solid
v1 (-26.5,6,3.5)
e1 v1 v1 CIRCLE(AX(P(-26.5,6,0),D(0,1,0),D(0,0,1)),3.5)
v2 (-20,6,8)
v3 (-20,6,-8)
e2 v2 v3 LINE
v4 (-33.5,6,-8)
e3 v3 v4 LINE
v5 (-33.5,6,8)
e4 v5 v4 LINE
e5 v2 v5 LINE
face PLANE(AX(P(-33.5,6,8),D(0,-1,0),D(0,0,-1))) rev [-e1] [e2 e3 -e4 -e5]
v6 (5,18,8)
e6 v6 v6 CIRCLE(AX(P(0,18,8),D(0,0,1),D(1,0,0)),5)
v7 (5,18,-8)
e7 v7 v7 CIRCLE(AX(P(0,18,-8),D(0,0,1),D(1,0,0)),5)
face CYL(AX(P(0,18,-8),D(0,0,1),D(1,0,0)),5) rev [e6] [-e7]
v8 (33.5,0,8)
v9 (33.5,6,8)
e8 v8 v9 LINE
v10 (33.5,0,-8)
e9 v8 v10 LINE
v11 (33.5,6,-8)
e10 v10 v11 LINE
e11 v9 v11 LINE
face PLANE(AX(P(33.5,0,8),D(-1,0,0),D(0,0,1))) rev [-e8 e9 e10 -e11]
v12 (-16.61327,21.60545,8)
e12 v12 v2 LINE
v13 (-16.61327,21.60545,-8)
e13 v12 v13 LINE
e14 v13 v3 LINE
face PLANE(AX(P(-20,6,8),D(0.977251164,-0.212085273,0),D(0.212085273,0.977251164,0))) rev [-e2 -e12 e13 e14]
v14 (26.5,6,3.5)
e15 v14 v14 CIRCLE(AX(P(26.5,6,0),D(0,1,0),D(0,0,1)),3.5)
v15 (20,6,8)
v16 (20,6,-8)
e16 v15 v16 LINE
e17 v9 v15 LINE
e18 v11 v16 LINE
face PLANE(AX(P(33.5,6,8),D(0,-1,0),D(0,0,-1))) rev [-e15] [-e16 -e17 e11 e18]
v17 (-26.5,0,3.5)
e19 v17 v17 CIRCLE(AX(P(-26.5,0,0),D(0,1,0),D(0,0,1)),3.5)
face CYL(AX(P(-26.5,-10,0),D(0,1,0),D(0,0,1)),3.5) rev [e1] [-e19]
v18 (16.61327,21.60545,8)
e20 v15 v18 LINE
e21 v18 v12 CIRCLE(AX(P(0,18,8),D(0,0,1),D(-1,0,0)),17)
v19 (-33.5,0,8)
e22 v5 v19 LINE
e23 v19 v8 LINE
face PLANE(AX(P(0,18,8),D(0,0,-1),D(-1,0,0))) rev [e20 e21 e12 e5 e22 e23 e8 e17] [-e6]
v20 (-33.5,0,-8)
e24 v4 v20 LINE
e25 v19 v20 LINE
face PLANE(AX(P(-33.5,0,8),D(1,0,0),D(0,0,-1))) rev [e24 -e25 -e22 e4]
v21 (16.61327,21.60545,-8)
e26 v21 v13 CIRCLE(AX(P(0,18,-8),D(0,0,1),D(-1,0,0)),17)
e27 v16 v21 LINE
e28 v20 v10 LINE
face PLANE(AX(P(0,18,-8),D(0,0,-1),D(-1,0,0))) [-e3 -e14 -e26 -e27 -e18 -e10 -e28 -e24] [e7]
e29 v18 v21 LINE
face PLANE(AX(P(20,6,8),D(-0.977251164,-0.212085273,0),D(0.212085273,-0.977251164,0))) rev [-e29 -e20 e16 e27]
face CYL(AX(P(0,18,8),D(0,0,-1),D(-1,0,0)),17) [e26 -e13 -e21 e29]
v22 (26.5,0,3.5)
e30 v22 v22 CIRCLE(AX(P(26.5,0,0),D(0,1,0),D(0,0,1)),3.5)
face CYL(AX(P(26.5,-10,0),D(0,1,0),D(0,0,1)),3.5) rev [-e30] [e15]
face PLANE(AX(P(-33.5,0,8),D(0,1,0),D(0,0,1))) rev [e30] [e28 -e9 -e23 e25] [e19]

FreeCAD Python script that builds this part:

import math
import FreeCAD as App
import Part
import Sketcher

doc = App.newDocument("Part")
params = doc.addObject("Spreadsheet::Sheet", "Params")
for row, (alias, value) in enumerate([
    ("sketch1_radius", "17 mm"),
    ("sketch1_width", "67 mm"),
    ("sketch1_height", "6 mm"),
    ("sketch1_width2", "13.5 mm"),
    ("pad1_length", "16 mm"),
    ("sketch2_diameter", "7 mm"),
    ("pocket1_length", "16 mm"),
    ("sketch3_diameter", "10 mm"),
    ("pocket2_length", "16 mm"),
], start=1):
    params.set(f"A{row}", alias)
    params.set(f"B{row}", "=" + value)
    params.setAlias(f"B{row}", alias)

body = doc.addObject("PartDesign::Body", "Body")

# Sketch on XY plane
sketch1 = body.newObject("Sketcher::SketchObject", "Sketch")
sketch1.AttachmentSupport = (doc.getObject("XY_Plane"), [""])
sketch1.MapMode = "FlatFace"
sketch1.addGeometry(Part.LineSegment(App.Vector(-34, 0, 0), App.Vector(34, 0, 0)), False)
sketch1.addGeometry(Part.LineSegment(App.Vector(34, 0, 0), App.Vector(34, 6, 0)), False)
sketch1.addGeometry(Part.LineSegment(App.Vector(34, 6, 0), App.Vector(20, 6, 0)), False)
sketch1.addGeometry(Part.LineSegment(App.Vector(20, 6, 0), App.Vector(17, 22, 0)), False)
sketch1.addGeometry(Part.ArcOfCircle(Part.Circle(App.Vector(0, 18, 0), App.Vector(0, 0, 1), 17), math.radians(12), math.radians(168)), False)
sketch1.addGeometry(Part.LineSegment(App.Vector(-17, 22, 0), App.Vector(-20, 6, 0)), False)
sketch1.addGeometry(Part.LineSegment(App.Vector(-20, 6, 0), App.Vector(-34, 6, 0)), False)
sketch1.addGeometry(Part.LineSegment(App.Vector(-34, 6, 0), App.Vector(-34, 0, 0)), False)
sketch1.addConstraint(Sketcher.Constraint("Coincident", 0, 2, 1, 1))
sketch1.addConstraint(Sketcher.Constraint("Coincident", 1, 2, 2, 1))
sketch1.addConstraint(Sketcher.Constraint("Coincident", 2, 2, 3, 1))
sketch1.addConstraint(Sketcher.Constraint("Tangent", 3, 2, 4, 1))
sketch1.addConstraint(Sketcher.Constraint("Tangent", 4, 2, 5, 1))
sketch1.addConstraint(Sketcher.Constraint("Coincident", 5, 2, 6, 1))
sketch1.addConstraint(Sketcher.Constraint("Coincident", 6, 2, 7, 1))
sketch1.addConstraint(Sketcher.Constraint("Coincident", 7, 2, 0, 1))
sketch1.addConstraint(Sketcher.Constraint("Horizontal", 0))
sketch1.addConstraint(Sketcher.Constraint("Vertical", 1))
sketch1.addConstraint(Sketcher.Constraint("Horizontal", 2))
sketch1.addConstraint(Sketcher.Constraint("Horizontal", 6))
sketch1.addConstraint(Sketcher.Constraint("Vertical", 7))
sketch1.addConstraint(Sketcher.Constraint("Symmetric", 0, 2, 7, 2, -1, 1))
sketch1.addConstraint(Sketcher.Constraint("Symmetric", 3, 2, 4, 2, -2))
sketch1.addConstraint(Sketcher.Constraint("Horizontal", 2, 2, 5, 2))
sketch1.addConstraint(Sketcher.Constraint("Radius", 4, 17.0))
sketch1.addConstraint(Sketcher.Constraint("DistanceX", 0, 1, 0, 2, 67.0))
sketch1.addConstraint(Sketcher.Constraint("DistanceY", 1, 1, 1, 2, 6.0))
sketch1.addConstraint(Sketcher.Constraint("DistanceX", 2, 2, 2, 1, 13.5))
sketch1.addConstraint(Sketcher.Constraint("DistanceY", -1, 1, 4, 3, 18.0))
sketch1.setExpression("Constraints[16]", "Params.sketch1_radius")
sketch1.setExpression("Constraints[17]", "Params.sketch1_width")
sketch1.setExpression("Constraints[18]", "Params.sketch1_height")
sketch1.setExpression("Constraints[19]", "Params.sketch1_width2")
pad1 = body.newObject("PartDesign::Pad", "Pad")
pad1.Profile = sketch1
pad1.setExpression("Length", "Params.pad1_length")
pad1.Midplane = True

# Sketch on XZ plane
sketch2 = body.newObject("Sketcher::SketchObject", "Sketch001")
sketch2.AttachmentSupport = (doc.getObject("XZ_Plane"), [""])
sketch2.MapMode = "FlatFace"
sketch2.AttachmentOffset = App.Placement(App.Vector(0, 0, -6), App.Rotation())
sketch2.addGeometry(Part.Circle(App.Vector(-26.5, 0, 0), App.Vector(0, 0, 1), 3.5), False)
sketch2.addGeometry(Part.Circle(App.Vector(26.5, 0, 0), App.Vector(0, 0, 1), 3.5), False)
sketch2.addConstraint(Sketcher.Constraint("Equal", 0, 1))
sketch2.addConstraint(Sketcher.Constraint("Symmetric", 0, 3, 1, 3, -1, 1))
sketch2.addConstraint(Sketcher.Constraint("PointOnObject", 0, 3, -1))
sketch2.addConstraint(Sketcher.Constraint("Diameter", 0, 7.0))
sketch2.addConstraint(Sketcher.Constraint("DistanceX", 0, 3, 1, 3, 53.0))
sketch2.setExpression("Constraints[3]", "Params.sketch2_diameter")
pocket1 = body.newObject("PartDesign::Pocket", "Pocket")
pocket1.Profile = sketch2
pocket1.setExpression("Length", "Params.pocket1_length")
pocket1.Reversed = True

# Sketch on XY plane
sketch3 = body.newObject("Sketcher::SketchObject", "Sketch002")
sketch3.AttachmentSupport = (doc.getObject("XY_Plane"), [""])
sketch3.MapMode = "FlatFace"
sketch3.AttachmentOffset = App.Placement(App.Vector(0, 0, 8), App.Rotation())
sketch3.addGeometry(Part.Circle(App.Vector(0, 18, 0), App.Vector(0, 0, 1), 5), False)
sketch3.addConstraint(Sketcher.Constraint("PointOnObject", 0, 3, -2))
sketch3.addConstraint(Sketcher.Constraint("Diameter", 0, 10.0))
sketch3.addConstraint(Sketcher.Constraint("DistanceY", -1, 1, 0, 3, 18.0))
sketch3.setExpression("Constraints[1]", "Params.sketch3_diameter")
pocket2 = body.newObject("PartDesign::Pocket", "Pocket001")
pocket2.Profile = sketch3
pocket2.setExpression("Length", "Params.pocket2_length")

doc.recompute()
